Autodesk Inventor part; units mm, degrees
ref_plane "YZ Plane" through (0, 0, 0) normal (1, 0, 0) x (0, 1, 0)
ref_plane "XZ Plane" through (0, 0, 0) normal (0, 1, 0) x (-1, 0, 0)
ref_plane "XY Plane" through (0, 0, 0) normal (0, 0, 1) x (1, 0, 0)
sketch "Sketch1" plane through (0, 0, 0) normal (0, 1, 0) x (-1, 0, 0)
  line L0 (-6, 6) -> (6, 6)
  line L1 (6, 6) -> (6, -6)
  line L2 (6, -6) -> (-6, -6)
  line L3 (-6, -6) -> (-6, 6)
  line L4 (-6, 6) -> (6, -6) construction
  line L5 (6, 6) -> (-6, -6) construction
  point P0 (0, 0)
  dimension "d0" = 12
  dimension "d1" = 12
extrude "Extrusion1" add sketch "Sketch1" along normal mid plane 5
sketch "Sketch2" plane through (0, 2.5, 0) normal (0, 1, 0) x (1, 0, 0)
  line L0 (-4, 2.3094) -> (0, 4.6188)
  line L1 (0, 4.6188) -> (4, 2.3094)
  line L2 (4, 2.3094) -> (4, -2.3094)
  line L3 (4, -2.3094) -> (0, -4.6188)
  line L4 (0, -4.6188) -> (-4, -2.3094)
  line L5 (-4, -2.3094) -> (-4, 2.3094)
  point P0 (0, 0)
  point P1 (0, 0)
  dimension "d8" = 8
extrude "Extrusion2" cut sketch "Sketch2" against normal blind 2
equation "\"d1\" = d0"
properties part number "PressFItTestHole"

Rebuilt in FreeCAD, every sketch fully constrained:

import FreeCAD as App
import Part
import Sketcher

V = App.Vector
Q = App.Units.Quantity


def add_polygon(sketch, points):
    """Adds a closed chain of lines whose ends are joined by coincident constraints."""
    first, n = sketch.GeometryCount, len(points)
    for a, b in zip(points, points[1:] + points[:1]):
        sketch.addGeometry(Part.LineSegment(App.Vector(*a, 0), App.Vector(*b, 0)), False)
    for i in range(n):
        sketch.addConstraint(Sketcher.Constraint("Coincident", first + i, 2, first + (i + 1) % n, 1))

doc = App.newDocument("Part")
body = doc.addObject("PartDesign::Body", "Body")

sketch1 = body.newObject("Sketcher::SketchObject", "Sketch")
sketch1.AttachmentSupport = (doc.getObject("XZ_Plane"), [""])
sketch1.MapMode = "FlatFace"
add_polygon(sketch1, [(-6, 6), (6, 6), (6, -6), (-6, -6)])
sketch1.addConstraint([
    Sketcher.Constraint("Horizontal", 0),
    Sketcher.Constraint("Vertical", 1),
    Sketcher.Constraint("Horizontal", 2),
    Sketcher.Constraint("Vertical", 3),
    Sketcher.Constraint("Symmetric", 0, 2, 2, 2, -1, 1),
    Sketcher.Constraint("Equal", 2, 1),
    Sketcher.Constraint("DistanceX", 0, 1, 0, 2, Q("12 mm")),
])
pad1 = body.newObject("PartDesign::Pad", "Pad")
pad1.Profile = sketch1
pad1.Length = 5
pad1.Midplane = True

sketch2 = body.newObject("Sketcher::SketchObject", "Sketch001")
sketch2.AttachmentSupport = (doc.getObject("XZ_Plane"), [""])
sketch2.MapMode = "FlatFace"
sketch2.AttachmentOffset = App.Placement(V(0, 0, -2.5), App.Rotation())
add_polygon(sketch2, [(0, -4.6), (-4, -2.3), (-4, 2.3), (0, 4.6), (4, 2.3), (4, -2.3)])
sketch2.addConstraint([
    Sketcher.Constraint("Vertical", 1),
    Sketcher.Constraint("Vertical", 4),
    Sketcher.Constraint("Symmetric", 0, 2, 3, 2, -1, 1),
    Sketcher.Constraint("Symmetric", 2, 2, 5, 2, -1, 1),
    Sketcher.Constraint("PointOnObject", 2, 2, -2),
    Sketcher.Constraint("Parallel", 2, 5),
    Sketcher.Constraint("Horizontal", 1, 2, 3, 2),
    Sketcher.Constraint("DistanceX", 1, 2, 3, 2, Q("8 mm")),
    Sketcher.Constraint("Angle", 0, Q("150 deg")),
    Sketcher.Constraint("DistanceY", 1, 1, 1, 2, Q("4.6188 mm")),
])
pocket1 = body.newObject("PartDesign::Pocket", "Pocket")
pocket1.Profile = sketch2
pocket1.Length = 2
pocket1.Reversed = True

doc.recompute()
